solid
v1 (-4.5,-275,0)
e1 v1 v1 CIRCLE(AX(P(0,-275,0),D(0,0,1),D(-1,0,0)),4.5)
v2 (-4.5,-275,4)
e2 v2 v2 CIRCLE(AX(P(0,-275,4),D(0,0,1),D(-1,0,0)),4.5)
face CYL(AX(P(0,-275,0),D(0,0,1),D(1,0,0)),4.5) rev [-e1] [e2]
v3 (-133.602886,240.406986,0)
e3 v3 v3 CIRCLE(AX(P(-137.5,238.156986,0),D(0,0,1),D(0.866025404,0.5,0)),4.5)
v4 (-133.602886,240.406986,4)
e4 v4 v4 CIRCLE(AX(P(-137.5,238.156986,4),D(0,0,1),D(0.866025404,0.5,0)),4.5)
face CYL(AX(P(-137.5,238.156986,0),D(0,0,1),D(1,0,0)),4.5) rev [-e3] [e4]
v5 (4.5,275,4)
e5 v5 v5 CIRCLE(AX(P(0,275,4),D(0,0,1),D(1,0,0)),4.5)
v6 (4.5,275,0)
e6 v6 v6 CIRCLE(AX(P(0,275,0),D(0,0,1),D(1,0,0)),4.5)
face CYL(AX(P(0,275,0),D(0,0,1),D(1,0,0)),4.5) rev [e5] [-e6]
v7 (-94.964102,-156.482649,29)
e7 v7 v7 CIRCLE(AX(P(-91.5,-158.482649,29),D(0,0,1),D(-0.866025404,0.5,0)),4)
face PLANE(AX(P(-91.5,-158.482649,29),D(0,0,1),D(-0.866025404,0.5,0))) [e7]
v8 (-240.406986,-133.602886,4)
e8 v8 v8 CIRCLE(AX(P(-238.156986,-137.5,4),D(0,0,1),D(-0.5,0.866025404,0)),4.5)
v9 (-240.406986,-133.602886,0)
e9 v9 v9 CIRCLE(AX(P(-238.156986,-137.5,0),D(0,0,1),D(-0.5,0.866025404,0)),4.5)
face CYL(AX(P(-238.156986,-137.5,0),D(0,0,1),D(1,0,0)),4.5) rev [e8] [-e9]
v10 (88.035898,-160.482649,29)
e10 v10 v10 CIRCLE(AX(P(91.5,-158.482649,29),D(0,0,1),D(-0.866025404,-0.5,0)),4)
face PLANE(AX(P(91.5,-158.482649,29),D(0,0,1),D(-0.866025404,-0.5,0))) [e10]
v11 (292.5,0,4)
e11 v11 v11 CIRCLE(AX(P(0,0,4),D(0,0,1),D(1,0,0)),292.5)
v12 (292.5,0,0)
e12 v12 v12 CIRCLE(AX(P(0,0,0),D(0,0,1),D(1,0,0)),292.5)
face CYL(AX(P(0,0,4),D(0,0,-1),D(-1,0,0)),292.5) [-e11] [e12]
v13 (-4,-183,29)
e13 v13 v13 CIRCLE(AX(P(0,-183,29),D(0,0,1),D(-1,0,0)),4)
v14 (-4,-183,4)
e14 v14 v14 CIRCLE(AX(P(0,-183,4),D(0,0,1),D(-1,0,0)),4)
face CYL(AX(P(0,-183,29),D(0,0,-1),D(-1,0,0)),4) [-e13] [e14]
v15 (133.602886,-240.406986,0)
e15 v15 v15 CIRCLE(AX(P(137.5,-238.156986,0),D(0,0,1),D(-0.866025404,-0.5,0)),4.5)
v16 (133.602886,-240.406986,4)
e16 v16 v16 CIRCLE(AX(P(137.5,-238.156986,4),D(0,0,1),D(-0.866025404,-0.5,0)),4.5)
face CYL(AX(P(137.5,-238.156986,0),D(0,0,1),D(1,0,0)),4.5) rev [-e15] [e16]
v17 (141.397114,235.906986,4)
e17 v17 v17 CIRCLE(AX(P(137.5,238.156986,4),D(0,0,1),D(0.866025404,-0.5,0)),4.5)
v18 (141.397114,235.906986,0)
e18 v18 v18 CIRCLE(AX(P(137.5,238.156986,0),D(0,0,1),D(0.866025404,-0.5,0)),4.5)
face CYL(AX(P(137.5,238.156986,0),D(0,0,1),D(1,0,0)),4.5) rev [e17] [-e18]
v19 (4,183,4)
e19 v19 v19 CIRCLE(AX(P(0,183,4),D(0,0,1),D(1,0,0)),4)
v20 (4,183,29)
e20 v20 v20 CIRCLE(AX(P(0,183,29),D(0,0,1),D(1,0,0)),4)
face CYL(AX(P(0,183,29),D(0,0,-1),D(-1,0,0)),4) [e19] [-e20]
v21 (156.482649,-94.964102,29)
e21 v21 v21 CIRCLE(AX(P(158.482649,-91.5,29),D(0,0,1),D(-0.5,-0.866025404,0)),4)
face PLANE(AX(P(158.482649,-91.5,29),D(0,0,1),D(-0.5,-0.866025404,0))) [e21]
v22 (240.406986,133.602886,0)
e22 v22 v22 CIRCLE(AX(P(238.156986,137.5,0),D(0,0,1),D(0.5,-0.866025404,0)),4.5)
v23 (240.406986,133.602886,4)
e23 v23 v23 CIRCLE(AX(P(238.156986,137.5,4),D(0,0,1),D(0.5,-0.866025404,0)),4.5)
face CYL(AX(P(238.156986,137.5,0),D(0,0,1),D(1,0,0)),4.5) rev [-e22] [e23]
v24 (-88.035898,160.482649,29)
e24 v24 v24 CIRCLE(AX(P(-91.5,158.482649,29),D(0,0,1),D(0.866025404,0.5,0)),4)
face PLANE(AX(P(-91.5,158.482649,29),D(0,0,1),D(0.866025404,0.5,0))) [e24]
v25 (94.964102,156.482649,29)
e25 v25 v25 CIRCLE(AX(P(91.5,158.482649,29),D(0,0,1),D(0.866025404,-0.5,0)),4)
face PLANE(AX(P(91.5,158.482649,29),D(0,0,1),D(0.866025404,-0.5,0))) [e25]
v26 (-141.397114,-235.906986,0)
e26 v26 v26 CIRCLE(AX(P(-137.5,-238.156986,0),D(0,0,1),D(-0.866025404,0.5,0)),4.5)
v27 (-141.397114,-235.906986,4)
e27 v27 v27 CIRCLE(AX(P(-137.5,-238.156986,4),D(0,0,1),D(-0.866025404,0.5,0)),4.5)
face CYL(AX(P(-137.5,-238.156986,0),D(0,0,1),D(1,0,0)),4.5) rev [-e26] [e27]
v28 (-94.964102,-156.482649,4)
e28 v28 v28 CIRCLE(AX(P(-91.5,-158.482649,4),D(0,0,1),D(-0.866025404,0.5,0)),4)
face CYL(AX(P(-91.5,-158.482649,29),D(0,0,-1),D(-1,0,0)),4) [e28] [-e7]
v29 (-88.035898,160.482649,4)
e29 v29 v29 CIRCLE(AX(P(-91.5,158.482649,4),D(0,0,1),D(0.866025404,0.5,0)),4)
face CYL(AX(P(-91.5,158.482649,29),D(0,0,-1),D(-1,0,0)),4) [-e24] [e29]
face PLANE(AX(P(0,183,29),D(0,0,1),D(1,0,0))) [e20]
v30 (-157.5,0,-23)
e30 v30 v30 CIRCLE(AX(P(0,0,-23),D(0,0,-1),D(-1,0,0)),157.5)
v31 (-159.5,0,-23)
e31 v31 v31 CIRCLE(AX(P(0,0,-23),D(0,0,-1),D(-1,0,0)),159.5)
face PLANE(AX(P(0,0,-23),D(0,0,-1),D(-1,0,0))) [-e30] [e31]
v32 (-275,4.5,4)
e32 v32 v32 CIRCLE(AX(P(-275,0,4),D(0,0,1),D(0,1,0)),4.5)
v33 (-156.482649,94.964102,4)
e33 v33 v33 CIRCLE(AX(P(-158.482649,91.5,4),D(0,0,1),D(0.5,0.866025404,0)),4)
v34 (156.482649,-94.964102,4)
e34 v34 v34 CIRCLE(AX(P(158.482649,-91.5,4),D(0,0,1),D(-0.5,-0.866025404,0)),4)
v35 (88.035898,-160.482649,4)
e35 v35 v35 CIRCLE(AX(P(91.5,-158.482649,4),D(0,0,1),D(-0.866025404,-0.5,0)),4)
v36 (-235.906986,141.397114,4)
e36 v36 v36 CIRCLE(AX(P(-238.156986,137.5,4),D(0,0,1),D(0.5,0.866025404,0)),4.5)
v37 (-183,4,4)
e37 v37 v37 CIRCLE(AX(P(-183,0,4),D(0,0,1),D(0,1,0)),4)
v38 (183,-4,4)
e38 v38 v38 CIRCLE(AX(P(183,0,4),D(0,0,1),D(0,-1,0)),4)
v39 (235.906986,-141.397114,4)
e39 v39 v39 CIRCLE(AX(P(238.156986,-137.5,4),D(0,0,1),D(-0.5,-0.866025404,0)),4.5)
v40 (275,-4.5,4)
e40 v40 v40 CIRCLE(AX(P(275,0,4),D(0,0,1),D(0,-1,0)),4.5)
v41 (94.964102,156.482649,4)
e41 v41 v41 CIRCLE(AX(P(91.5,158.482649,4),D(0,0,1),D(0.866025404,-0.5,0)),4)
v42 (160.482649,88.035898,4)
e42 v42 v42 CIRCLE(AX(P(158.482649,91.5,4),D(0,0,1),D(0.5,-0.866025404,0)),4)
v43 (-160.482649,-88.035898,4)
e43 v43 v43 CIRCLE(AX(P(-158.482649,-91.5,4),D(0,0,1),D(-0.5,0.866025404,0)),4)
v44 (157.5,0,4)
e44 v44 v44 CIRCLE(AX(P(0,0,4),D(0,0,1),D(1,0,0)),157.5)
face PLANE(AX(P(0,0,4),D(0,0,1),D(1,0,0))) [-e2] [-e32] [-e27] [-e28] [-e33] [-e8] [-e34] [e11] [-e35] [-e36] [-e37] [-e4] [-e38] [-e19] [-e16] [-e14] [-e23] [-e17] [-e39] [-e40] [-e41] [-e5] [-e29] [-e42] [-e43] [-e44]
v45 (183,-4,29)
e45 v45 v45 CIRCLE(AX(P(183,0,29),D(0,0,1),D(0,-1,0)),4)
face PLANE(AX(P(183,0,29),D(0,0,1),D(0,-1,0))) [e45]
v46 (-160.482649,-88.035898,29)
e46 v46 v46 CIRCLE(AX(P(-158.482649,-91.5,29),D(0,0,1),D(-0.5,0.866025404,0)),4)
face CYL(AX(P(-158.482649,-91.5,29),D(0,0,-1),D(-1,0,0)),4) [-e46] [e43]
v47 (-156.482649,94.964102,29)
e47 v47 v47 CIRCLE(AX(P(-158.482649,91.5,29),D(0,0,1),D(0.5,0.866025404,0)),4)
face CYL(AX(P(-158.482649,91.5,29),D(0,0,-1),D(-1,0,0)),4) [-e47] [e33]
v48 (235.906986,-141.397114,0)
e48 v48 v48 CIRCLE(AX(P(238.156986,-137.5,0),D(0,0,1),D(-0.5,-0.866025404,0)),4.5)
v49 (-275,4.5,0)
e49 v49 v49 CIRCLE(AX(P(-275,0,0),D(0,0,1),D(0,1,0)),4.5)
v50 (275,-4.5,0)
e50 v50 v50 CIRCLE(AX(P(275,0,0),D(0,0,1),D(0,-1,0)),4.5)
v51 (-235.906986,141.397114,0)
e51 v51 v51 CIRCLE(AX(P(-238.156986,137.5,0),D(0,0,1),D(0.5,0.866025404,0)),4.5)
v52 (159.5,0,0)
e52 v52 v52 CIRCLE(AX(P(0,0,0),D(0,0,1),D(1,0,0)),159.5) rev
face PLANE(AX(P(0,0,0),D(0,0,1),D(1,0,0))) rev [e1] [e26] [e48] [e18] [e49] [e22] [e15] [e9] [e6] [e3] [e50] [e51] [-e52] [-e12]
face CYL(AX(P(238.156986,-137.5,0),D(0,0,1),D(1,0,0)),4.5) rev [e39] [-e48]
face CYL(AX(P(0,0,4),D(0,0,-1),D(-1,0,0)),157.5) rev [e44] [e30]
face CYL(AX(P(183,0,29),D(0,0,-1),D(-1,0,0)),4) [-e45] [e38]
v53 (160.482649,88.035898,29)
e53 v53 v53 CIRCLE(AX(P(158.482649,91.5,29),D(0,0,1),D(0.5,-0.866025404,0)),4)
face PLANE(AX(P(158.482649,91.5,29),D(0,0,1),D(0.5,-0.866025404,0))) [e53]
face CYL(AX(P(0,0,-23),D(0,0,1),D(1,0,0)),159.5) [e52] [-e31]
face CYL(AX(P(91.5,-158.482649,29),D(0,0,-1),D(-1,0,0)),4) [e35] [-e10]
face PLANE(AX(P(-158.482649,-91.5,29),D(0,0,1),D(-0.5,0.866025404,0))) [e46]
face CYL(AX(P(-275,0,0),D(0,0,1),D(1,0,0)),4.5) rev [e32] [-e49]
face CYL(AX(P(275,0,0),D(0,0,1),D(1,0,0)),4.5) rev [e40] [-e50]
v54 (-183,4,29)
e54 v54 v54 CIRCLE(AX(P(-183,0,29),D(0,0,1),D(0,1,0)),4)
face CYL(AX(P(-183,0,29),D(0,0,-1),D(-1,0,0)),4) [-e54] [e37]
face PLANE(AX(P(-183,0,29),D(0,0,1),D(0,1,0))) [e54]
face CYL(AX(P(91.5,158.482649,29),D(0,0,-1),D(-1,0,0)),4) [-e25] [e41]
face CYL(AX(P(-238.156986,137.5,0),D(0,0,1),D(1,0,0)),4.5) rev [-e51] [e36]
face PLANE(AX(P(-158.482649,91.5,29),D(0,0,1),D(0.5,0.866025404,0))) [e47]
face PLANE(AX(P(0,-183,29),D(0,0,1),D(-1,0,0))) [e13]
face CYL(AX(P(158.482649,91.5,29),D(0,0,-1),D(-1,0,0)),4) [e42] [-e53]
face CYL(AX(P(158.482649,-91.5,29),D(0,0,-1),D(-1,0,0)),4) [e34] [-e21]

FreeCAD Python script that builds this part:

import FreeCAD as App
import Part
import Sketcher

V = App.Vector

doc = App.newDocument("Part")
params = doc.addObject("Spreadsheet::Sheet", "Params")
for row, (alias, value) in enumerate([
    ("sketch1_diameter", "585 mm"),
    ("sketch1_diameter2", "315 mm"),
    ("pad1_length", "4 mm"),
    ("sketch2_diameter", "9 mm"),
    ("sketch3_diameter", "8 mm"),
    ("pad2_length", "25 mm"),
    ("sketch4_diameter", "319 mm"),
    ("sketch4_diameter2", "315 mm"),
    ("pad3_length", "23 mm"),
], start=1):
    params.set(f"A{row}", alias)
    params.set(f"B{row}", "=" + value)
    params.setAlias(f"B{row}", alias)

body = doc.addObject("PartDesign::Body", "Body")

# Sketch on XY plane
sketch1 = doc.addObject("Sketcher::SketchObject", "Sketch")
body.addObject(sketch1)
sketch1.AttachmentSupport = (doc.XY_Plane, [""])
sketch1.MapMode = "FlatFace"
sketch1.addGeometry(Part.Circle(V(0, 0, 0), V(0, 0, 1), 292), False)
sketch1.addGeometry(Part.Circle(V(0, 0, 0), V(0, 0, 1), 158), False)
sketch1.addConstraint(Sketcher.Constraint("Coincident", 0, 3, -1, 1))
sketch1.addConstraint(Sketcher.Constraint("Coincident", 1, 3, -1, 1))
sketch1.addConstraint(Sketcher.Constraint("Diameter", 0, 585.0))
sketch1.addConstraint(Sketcher.Constraint("Diameter", 1, 315.0))
sketch1.setExpression("Constraints[2]", "Params.sketch1_diameter")
sketch1.setExpression("Constraints[3]", "Params.sketch1_diameter2")
pad1 = doc.addObject("PartDesign::Pad", "Pad")
body.addObject(pad1)
pad1.Profile = sketch1
pad1.setExpression("Length", "Params.pad1_length")

# Sketch on XY plane
sketch2 = doc.addObject("Sketcher::SketchObject", "Sketch001")
body.addObject(sketch2)
sketch2.AttachmentSupport = (doc.XY_Plane, [""])
sketch2.MapMode = "FlatFace"
sketch2.AttachmentOffset = App.Placement(V(0, 0, 4), App.Rotation())
sketch2.addGeometry(Part.Circle(V(0, 275, 0), V(0, 0, 1), 4.5), False)
sketch2.addConstraint(Sketcher.Constraint("PointOnObject", 0, 3, -2))
sketch2.addConstraint(Sketcher.Constraint("Diameter", 0, 9.0))
sketch2.addConstraint(Sketcher.Constraint("DistanceY", -1, 1, 0, 3, 275.0))
sketch2.setExpression("Constraints[1]", "Params.sketch2_diameter")
pocket1 = doc.addObject("PartDesign::Pocket", "Pocket")
body.addObject(pocket1)
pocket1.Profile = sketch2
pocket1.Type = "ThroughAll"
doc.recompute()

polarpattern = doc.addObject("PartDesign::PolarPattern", "PolarPattern")
body.addObject(polarpattern)
polarpattern.Originals = [pocket1]
polarpattern.Axis = (doc.Z_Axis, [""])
polarpattern.Angle = 360
polarpattern.Occurrences = 12
body.Tip = polarpattern

# Sketch on XY plane
sketch3 = doc.addObject("Sketcher::SketchObject", "Sketch002")
body.addObject(sketch3)
sketch3.AttachmentSupport = (doc.XY_Plane, [""])
sketch3.MapMode = "FlatFace"
sketch3.AttachmentOffset = App.Placement(V(0, 0, 4), App.Rotation())
sketch3.addGeometry(Part.Circle(V(0, 183, 0), V(0, 0, 1), 4), False)
sketch3.addConstraint(Sketcher.Constraint("PointOnObject", 0, 3, -2))
sketch3.addConstraint(Sketcher.Constraint("Diameter", 0, 8.0))
sketch3.addConstraint(Sketcher.Constraint("DistanceY", -1, 1, 0, 3, 183.0))
sketch3.setExpression("Constraints[1]", "Params.sketch3_diameter")
pad2 = doc.addObject("PartDesign::Pad", "Pad001")
body.addObject(pad2)
pad2.Profile = sketch3
pad2.setExpression("Length", "Params.pad2_length")
doc.recompute()

polarpattern2 = doc.addObject("PartDesign::PolarPattern", "PolarPattern001")
body.addObject(polarpattern2)
polarpattern2.Originals = [pad2]
polarpattern2.Axis = (doc.Z_Axis, [""])
polarpattern2.Angle = 360
polarpattern2.Occurrences = 12
body.Tip = polarpattern2

# Sketch on XY plane
sketch4 = doc.addObject("Sketcher::SketchObject", "Sketch003")
body.addObject(sketch4)
sketch4.AttachmentSupport = (doc.XY_Plane, [""])
sketch4.MapMode = "FlatFace"
sketch4.AttachmentOffset = App.Placement(V(0, 0, -23), App.Rotation())
sketch4.addGeometry(Part.Circle(V(0, 0, 0), V(0, 0, 1), 160), False)
sketch4.addGeometry(Part.Circle(V(0, 0, 0), V(0, 0, 1), 158), False)
sketch4.addConstraint(Sketcher.Constraint("Coincident", 0, 3, -1, 1))
sketch4.addConstraint(Sketcher.Constraint("Coincident", 1, 3, -1, 1))
sketch4.addConstraint(Sketcher.Constraint("Diameter", 0, 319.0))
sketch4.addConstraint(Sketcher.Constraint("Diameter", 1, 315.0))
sketch4.setExpression("Constraints[2]", "Params.sketch4_diameter")
sketch4.setExpression("Constraints[3]", "Params.sketch4_diameter2")
pad3 = doc.addObject("PartDesign::Pad", "Pad002")
body.addObject(pad3)
pad3.Profile = sketch4
pad3.setExpression("Length", "Params.pad3_length")

doc.recompute()
